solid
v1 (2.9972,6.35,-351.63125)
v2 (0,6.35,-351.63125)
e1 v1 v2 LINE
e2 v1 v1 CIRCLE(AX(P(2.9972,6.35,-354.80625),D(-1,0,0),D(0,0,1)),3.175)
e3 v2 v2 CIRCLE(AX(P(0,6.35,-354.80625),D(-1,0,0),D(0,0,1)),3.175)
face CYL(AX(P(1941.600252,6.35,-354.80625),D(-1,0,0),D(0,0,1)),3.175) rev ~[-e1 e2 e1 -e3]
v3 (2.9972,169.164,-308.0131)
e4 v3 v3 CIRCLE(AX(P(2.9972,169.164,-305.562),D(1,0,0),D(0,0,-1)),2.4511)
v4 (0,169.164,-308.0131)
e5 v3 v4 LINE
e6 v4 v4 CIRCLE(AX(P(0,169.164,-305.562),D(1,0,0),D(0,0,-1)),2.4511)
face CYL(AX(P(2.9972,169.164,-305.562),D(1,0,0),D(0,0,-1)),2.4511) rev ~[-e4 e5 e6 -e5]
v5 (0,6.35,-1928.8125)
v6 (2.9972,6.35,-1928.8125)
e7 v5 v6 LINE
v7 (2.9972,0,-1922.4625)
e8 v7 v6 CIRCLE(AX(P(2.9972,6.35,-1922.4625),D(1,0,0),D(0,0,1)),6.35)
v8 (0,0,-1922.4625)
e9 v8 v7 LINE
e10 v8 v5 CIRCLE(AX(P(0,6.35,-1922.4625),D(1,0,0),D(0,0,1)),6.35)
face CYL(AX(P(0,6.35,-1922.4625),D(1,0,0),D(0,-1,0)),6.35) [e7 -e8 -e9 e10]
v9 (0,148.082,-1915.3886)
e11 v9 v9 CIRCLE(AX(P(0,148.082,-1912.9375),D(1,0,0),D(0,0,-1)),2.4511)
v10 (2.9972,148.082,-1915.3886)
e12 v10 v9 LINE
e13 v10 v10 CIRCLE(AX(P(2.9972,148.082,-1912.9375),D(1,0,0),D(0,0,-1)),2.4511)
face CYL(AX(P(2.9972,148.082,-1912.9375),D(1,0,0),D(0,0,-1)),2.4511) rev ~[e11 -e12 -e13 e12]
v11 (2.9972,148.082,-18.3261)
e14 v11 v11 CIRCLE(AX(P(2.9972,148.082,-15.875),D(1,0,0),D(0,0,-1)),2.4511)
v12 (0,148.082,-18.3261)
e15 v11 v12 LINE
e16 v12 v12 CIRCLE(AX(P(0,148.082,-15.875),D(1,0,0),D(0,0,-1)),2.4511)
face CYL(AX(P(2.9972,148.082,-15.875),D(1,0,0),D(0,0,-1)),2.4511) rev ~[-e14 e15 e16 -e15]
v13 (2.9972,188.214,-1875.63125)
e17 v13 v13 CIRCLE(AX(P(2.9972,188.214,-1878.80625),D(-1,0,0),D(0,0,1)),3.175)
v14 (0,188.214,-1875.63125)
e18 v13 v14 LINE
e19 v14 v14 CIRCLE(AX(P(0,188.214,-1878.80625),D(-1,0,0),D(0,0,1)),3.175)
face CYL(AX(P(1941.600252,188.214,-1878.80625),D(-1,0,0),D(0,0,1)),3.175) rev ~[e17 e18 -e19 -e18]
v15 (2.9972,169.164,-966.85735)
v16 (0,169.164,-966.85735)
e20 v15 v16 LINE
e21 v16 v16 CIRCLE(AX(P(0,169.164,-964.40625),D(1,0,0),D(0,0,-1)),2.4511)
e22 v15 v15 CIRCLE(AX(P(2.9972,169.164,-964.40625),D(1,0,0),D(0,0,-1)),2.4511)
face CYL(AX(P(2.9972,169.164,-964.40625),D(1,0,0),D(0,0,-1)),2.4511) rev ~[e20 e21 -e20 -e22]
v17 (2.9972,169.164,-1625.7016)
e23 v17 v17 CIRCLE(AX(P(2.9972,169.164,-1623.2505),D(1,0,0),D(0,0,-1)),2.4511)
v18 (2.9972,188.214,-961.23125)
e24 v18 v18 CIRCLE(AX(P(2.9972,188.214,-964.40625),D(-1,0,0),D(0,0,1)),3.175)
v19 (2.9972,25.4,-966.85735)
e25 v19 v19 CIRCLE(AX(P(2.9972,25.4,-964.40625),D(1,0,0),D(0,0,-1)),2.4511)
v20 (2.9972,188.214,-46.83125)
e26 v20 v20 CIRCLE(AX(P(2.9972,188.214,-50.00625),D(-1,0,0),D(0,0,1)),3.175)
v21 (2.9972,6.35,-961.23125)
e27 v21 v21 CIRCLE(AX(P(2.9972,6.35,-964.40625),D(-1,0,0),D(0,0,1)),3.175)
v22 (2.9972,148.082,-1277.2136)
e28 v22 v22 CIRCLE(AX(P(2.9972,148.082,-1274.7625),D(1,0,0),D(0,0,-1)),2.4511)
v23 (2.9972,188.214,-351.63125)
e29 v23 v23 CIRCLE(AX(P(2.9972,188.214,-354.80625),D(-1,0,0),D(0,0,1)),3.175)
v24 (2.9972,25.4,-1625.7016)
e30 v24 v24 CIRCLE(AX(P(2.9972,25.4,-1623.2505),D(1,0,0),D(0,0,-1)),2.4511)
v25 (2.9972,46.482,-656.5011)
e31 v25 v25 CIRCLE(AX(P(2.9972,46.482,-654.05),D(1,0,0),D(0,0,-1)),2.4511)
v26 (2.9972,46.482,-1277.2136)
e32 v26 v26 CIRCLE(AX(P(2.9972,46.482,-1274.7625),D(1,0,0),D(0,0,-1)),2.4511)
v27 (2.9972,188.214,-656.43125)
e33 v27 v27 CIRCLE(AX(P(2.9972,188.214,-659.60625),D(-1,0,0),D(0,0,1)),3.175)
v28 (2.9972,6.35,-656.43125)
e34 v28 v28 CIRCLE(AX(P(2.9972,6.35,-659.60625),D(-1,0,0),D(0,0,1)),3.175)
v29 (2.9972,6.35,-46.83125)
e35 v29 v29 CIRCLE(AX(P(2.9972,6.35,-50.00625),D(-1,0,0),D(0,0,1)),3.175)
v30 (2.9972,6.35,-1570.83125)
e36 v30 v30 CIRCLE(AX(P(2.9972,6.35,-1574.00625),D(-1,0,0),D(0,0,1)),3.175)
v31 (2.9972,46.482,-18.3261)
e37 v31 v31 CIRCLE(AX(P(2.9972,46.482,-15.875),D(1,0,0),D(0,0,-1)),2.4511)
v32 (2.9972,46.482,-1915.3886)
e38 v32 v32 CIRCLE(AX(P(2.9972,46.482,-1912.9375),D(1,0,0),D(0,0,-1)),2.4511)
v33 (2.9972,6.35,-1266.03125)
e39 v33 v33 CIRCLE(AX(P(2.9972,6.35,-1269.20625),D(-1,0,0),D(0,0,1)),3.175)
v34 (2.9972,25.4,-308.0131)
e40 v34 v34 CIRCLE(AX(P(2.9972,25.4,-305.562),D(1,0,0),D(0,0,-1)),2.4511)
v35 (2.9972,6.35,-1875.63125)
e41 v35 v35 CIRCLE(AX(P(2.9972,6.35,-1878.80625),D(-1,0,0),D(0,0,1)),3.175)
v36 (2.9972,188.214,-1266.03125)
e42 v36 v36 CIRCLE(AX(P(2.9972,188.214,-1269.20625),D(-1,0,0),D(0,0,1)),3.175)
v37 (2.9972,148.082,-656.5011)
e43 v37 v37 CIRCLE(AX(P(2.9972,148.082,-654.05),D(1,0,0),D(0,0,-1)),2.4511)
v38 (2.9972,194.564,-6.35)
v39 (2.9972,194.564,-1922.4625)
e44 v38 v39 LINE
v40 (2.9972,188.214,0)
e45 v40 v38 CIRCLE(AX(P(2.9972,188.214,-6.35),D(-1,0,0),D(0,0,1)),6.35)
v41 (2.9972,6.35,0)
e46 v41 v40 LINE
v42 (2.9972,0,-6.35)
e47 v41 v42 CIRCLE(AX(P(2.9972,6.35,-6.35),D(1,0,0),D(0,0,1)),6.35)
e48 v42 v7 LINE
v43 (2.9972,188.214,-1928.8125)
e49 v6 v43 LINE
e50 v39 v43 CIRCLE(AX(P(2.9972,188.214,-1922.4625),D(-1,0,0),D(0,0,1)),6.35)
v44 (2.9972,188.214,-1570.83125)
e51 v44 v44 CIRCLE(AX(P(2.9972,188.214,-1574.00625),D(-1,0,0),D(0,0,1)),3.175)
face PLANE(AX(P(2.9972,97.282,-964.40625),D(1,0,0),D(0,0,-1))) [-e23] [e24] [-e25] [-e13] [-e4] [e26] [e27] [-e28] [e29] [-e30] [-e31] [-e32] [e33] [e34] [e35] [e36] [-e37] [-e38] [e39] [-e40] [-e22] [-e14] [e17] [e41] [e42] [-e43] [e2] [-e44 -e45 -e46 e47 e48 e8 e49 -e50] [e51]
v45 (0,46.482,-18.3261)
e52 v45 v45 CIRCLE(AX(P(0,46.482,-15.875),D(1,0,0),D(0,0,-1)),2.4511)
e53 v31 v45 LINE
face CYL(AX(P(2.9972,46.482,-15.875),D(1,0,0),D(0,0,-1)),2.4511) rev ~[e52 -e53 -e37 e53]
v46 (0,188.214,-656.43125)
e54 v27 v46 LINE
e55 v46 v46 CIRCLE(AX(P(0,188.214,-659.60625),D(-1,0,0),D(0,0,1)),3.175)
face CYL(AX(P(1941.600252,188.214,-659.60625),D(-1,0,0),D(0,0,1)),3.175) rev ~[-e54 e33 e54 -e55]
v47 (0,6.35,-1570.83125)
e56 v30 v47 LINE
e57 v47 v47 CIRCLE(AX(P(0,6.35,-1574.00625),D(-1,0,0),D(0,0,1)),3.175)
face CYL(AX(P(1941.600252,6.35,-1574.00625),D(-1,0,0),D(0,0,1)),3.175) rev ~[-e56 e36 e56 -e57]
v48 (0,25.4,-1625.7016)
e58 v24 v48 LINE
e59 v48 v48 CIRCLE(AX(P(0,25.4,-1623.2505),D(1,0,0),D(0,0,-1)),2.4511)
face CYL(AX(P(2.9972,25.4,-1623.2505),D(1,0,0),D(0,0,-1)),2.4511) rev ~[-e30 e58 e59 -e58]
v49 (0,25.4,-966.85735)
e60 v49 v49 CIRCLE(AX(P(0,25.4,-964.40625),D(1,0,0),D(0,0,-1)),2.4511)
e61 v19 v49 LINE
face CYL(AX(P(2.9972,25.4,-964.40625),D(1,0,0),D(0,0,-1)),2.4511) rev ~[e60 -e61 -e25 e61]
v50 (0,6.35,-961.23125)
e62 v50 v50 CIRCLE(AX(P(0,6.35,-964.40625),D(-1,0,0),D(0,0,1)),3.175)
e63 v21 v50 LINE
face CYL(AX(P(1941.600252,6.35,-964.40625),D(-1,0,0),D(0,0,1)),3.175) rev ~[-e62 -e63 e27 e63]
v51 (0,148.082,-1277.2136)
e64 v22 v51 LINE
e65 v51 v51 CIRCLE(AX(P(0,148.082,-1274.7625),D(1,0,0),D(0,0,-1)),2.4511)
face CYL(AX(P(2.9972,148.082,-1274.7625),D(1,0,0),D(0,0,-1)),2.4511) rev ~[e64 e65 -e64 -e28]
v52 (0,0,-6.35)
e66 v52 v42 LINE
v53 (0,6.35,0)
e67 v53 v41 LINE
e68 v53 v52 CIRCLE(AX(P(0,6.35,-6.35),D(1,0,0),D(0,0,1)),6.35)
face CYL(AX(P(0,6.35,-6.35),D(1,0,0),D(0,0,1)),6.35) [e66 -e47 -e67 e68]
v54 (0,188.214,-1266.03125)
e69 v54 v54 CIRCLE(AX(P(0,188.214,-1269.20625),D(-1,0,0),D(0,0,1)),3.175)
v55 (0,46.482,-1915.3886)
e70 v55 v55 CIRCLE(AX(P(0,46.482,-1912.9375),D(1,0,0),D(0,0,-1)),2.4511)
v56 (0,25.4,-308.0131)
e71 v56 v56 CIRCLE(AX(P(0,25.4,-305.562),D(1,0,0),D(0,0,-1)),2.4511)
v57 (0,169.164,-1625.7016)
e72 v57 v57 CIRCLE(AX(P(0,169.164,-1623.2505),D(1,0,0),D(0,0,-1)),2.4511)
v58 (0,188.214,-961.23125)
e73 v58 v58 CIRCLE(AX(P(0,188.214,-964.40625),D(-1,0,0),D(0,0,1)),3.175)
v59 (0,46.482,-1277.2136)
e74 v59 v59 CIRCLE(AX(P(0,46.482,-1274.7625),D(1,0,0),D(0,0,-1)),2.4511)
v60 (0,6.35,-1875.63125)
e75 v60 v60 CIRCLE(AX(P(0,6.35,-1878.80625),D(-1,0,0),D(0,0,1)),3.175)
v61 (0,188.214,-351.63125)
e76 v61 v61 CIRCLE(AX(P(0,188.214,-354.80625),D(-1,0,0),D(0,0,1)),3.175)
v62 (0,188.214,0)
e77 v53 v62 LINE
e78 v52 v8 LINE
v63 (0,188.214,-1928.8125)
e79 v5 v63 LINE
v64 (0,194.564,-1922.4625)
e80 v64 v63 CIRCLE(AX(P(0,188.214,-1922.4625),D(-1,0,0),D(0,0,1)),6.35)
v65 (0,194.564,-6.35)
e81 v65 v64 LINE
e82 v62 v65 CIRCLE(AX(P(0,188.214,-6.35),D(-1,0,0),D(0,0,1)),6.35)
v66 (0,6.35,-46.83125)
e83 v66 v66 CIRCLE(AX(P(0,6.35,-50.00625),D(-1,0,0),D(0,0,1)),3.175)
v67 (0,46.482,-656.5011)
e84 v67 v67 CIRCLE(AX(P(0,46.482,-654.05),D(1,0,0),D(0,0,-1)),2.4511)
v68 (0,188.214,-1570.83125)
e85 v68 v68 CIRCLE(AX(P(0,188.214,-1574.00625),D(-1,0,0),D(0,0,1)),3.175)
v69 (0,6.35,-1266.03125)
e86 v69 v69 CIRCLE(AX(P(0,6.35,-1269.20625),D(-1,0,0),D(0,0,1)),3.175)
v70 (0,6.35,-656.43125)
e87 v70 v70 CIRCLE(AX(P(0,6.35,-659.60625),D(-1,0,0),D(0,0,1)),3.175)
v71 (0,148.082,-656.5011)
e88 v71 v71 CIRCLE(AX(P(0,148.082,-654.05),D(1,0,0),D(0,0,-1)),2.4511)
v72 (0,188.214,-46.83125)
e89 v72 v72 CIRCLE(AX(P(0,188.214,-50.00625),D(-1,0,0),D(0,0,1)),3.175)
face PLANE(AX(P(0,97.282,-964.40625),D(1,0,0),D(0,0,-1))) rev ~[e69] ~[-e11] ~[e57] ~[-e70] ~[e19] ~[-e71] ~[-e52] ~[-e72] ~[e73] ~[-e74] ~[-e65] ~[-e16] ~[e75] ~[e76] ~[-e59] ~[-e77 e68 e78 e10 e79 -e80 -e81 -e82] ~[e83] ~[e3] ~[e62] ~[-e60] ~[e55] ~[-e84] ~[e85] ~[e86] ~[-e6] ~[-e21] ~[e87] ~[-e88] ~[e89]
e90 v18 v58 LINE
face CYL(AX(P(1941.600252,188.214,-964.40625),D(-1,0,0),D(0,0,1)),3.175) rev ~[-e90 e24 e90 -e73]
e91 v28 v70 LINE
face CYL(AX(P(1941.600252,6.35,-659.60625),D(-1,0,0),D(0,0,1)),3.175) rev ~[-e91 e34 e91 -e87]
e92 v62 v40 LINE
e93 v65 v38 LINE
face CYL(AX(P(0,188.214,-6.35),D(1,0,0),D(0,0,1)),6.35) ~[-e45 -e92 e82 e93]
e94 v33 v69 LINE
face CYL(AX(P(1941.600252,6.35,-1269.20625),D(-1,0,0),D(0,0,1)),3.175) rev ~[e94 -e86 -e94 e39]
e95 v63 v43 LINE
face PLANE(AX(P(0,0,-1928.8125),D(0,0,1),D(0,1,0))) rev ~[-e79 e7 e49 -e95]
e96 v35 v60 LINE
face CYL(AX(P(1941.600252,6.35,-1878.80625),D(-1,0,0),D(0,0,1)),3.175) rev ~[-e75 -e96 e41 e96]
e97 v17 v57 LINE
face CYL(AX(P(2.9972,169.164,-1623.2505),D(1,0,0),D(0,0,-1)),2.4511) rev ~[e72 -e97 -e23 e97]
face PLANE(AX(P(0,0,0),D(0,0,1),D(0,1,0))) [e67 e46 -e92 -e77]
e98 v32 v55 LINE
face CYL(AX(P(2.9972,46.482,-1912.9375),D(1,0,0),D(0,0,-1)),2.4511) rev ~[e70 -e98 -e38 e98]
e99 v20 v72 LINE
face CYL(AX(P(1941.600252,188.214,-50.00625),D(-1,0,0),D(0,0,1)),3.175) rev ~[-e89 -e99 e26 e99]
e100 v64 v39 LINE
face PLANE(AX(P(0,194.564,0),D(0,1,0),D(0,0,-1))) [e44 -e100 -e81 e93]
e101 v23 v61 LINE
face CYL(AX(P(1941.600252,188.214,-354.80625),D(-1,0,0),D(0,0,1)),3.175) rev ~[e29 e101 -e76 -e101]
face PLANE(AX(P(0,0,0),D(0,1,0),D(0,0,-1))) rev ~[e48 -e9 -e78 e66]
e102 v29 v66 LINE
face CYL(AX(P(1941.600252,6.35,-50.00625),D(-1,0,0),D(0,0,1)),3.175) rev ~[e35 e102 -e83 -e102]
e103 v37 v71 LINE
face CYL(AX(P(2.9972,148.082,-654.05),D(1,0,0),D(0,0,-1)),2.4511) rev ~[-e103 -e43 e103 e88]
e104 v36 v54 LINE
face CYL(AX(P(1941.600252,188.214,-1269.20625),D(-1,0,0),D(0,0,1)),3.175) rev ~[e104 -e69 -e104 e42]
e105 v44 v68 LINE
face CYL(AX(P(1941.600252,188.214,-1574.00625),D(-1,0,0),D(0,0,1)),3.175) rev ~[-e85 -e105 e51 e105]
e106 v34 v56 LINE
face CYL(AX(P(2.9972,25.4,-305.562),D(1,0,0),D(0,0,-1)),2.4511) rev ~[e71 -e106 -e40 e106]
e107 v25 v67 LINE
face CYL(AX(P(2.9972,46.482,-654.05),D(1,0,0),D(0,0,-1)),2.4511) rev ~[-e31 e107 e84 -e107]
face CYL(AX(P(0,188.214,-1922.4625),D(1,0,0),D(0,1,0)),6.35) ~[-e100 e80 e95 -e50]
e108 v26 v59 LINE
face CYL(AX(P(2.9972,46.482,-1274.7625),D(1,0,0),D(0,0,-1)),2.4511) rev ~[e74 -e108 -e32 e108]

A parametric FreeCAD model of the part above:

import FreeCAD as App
import Part
import Sketcher
Q = App.Units.Quantity


def edges_at(feature, points):
    """Names of the edges that pass closest to the given points."""
    edges = feature.Shape.Edges
    near = lambda p: min(range(len(edges)), key=lambda i: edges[i].distToShape(Part.Vertex(*p))[0])
    return sorted({f"Edge{near(p) + 1}" for p in points})


def add_polygon(sketch, points):
    """Adds a closed chain of lines whose ends are joined by coincident constraints."""
    first, n = sketch.GeometryCount, len(points)
    for a, b in zip(points, points[1:] + points[:1]):
        sketch.addGeometry(Part.LineSegment(App.Vector(*a, 0), App.Vector(*b, 0)), False)
    for i in range(n):
        sketch.addConstraint(Sketcher.Constraint("Coincident", first + i, 2, first + (i + 1) % n, 1))

doc = App.newDocument("Part")
body = doc.addObject("PartDesign::Body", "Body")

# Sketch on YZ plane
sketch1 = body.newObject("Sketcher::SketchObject", "Sketch")
sketch1.AttachmentSupport = (doc.getObject("YZ_Plane"), [""])
sketch1.MapMode = "FlatFace"
add_polygon(sketch1, [(194.564, 0), (0, 0), (0, -1928.8125), (194.564, -1928.8125)])  # lines 0-3
sketch1.addConstraint(Sketcher.Constraint("Horizontal", 0))
sketch1.addConstraint(Sketcher.Constraint("Vertical", 1))
sketch1.addConstraint(Sketcher.Constraint("Horizontal", 2))
sketch1.addConstraint(Sketcher.Constraint("Vertical", 3))
sketch1.addConstraint(Sketcher.Constraint("Coincident", 0, 2, -1, 1))
sketch1.addConstraint(Sketcher.Constraint("DistanceX", 0, 2, 0, 1, Q("7.66 in")))
sketch1.addConstraint(Sketcher.Constraint("DistanceY", 1, 2, 1, 1, Q("75.9375 in")))
pad1 = body.newObject("PartDesign::Pad", "Pad")
pad1.Profile = sketch1
pad1.Length = Q("0.118 in")

# Sketch on YZ plane
sketch2 = body.newObject("Sketcher::SketchObject", "Sketch001")
sketch2.AttachmentSupport = (doc.getObject("YZ_Plane"), [""])
sketch2.MapMode = "FlatFace"
sketch2.AttachmentOffset = App.Placement(App.Vector(0, 0, 0.118 * 25.4), App.Rotation())
sketch2.addGeometry(Part.Circle(App.Vector(148.082, -15.875, 0), App.Vector(0, 0, 1), 2.4511), False)
sketch2.addGeometry(Part.Circle(App.Vector(148.082, -654.05, 0), App.Vector(0, 0, 1), 2.4511), False)
sketch2.addGeometry(Part.Circle(App.Vector(169.164, -305.562, 0), App.Vector(0, 0, 1), 2.4511), False)
sketch2.addGeometry(Part.Circle(App.Vector(169.164, -964.40625, 0), App.Vector(0, 0, 1), 2.4511), False)
sketch2.addGeometry(Part.Circle(App.Vector(25.4, -964.40625, 0), App.Vector(0, 0, 1), 2.4511), False)
sketch2.addGeometry(Part.Circle(App.Vector(25.4, -305.562, 0), App.Vector(0, 0, 1), 2.4511), False)
sketch2.addGeometry(Part.Circle(App.Vector(46.482, -15.875, 0), App.Vector(0, 0, 1), 2.4511), False)
sketch2.addGeometry(Part.Circle(App.Vector(46.482, -654.05, 0), App.Vector(0, 0, 1), 2.4511), False)
sketch2.addGeometry(Part.Circle(App.Vector(25.4, -1623.2505, 0), App.Vector(0, 0, 1), 2.4511), False)
sketch2.addGeometry(Part.Circle(App.Vector(169.164, -1623.2505, 0), App.Vector(0, 0, 1), 2.4511), False)
sketch2.addGeometry(Part.Circle(App.Vector(46.482, -1912.9375, 0), App.Vector(0, 0, 1), 2.4511), False)
sketch2.addGeometry(Part.Circle(App.Vector(148.082, -1912.9375, 0), App.Vector(0, 0, 1), 2.4511), False)
sketch2.addGeometry(Part.Circle(App.Vector(46.482, -1274.7625, 0), App.Vector(0, 0, 1), 2.4511), False)
sketch2.addGeometry(Part.Circle(App.Vector(148.082, -1274.7625, 0), App.Vector(0, 0, 1), 2.4511), False)
sketch2.addConstraint(Sketcher.Constraint("Equal", 0, 1))
sketch2.addConstraint(Sketcher.Constraint("Equal", 1, 2))
sketch2.addConstraint(Sketcher.Constraint("Equal", 2, 3))
sketch2.addConstraint(Sketcher.Constraint("Equal", 3, 4))
sketch2.addConstraint(Sketcher.Constraint("Equal", 4, 5))
sketch2.addConstraint(Sketcher.Constraint("Equal", 5, 6))
sketch2.addConstraint(Sketcher.Constraint("Equal", 6, 7))
sketch2.addConstraint(Sketcher.Constraint("Equal", 7, 8))
sketch2.addConstraint(Sketcher.Constraint("Equal", 8, 9))
sketch2.addConstraint(Sketcher.Constraint("Equal", 9, 10))
sketch2.addConstraint(Sketcher.Constraint("Equal", 10, 11))
sketch2.addConstraint(Sketcher.Constraint("Equal", 11, 12))
sketch2.addConstraint(Sketcher.Constraint("Equal", 12, 13))
sketch2.addConstraint(Sketcher.Constraint("Horizontal", 3, 3, 4, 3))
sketch2.addConstraint(Sketcher.Constraint("Horizontal", 2, 3, 5, 3))
sketch2.addConstraint(Sketcher.Constraint("Horizontal", 0, 3, 6, 3))
sketch2.addConstraint(Sketcher.Constraint("Horizontal", 1, 3, 7, 3))
sketch2.addConstraint(Sketcher.Constraint("Horizontal", 8, 3, 9, 3))
sketch2.addConstraint(Sketcher.Constraint("Horizontal", 10, 3, 11, 3))
sketch2.addConstraint(Sketcher.Constraint("Horizontal", 12, 3, 13, 3))
sketch2.addConstraint(Sketcher.Constraint("Vertical", 0, 3, 1, 3))
sketch2.addConstraint(Sketcher.Constraint("Vertical", 2, 3, 3, 3))
sketch2.addConstraint(Sketcher.Constraint("Vertical", 4, 3, 5, 3))
sketch2.addConstraint(Sketcher.Constraint("Vertical", 6, 3, 7, 3))
sketch2.addConstraint(Sketcher.Constraint("Vertical", 5, 3, 8, 3))
sketch2.addConstraint(Sketcher.Constraint("Vertical", 3, 3, 9, 3))
sketch2.addConstraint(Sketcher.Constraint("Vertical", 7, 3, 10, 3))
sketch2.addConstraint(Sketcher.Constraint("Vertical", 1, 3, 11, 3))
sketch2.addConstraint(Sketcher.Constraint("Vertical", 10, 3, 12, 3))
sketch2.addConstraint(Sketcher.Constraint("Vertical", 11, 3, 13, 3))
sketch2.addConstraint(Sketcher.Constraint("Diameter", 0, Q("0.193 in")))
sketch2.addConstraint(Sketcher.Constraint("DistanceX", -1, 1, 4, 3, Q("1 in")))
sketch2.addConstraint(Sketcher.Constraint("DistanceX", 6, 3, 0, 3, Q("4 in")))
sketch2.addConstraint(Sketcher.Constraint("DistanceX", -1, 1, 0, 3, Q("5.83 in")))
sketch2.addConstraint(Sketcher.Constraint("DistanceY", 1, 3, -1, 1, Q("25.75 in")))
sketch2.addConstraint(Sketcher.Constraint("DistanceX", -1, 1, 2, 3, Q("6.66 in")))
sketch2.addConstraint(Sketcher.Constraint("DistanceY", 2, 3, -1, 1, Q("12.03 in")))
sketch2.addConstraint(Sketcher.Constraint("DistanceY", 8, 3, 12, 3, Q("13.72 in")))
sketch2.addConstraint(Sketcher.Constraint("DistanceY", 0, 3, -1, 1, Q("0.625 in")))
sketch2.addConstraint(Sketcher.Constraint("DistanceY", 3, 3, -1, 1, Q("37.96875 in")))
sketch2.addConstraint(Sketcher.Constraint("DistanceY", 10, 3, -1, 1, Q("75.3125 in")))
sketch2.addConstraint(Sketcher.Constraint("DistanceY", 12, 3, -1, 1, Q("50.1875 in")))
pocket1 = body.newObject("PartDesign::Pocket", "Pocket")
pocket1.Profile = sketch2
pocket1.Type = "ThroughAll"
doc.recompute()

fillet = body.newObject("PartDesign::Fillet", "Fillet")
fillet.Base = (pocket1, edges_at(pocket1, [
    (1.499, 194.564, 0),
    (1.499, 194.564, -1928.812),
    (1.499, 0, -1928.812),
    (1.499, 0, 0),
]))
fillet.Radius = Q("0.25 in")

# Sketch on YZ plane
sketch3 = body.newObject("Sketcher::SketchObject", "Sketch002")
sketch3.AttachmentSupport = (doc.getObject("YZ_Plane"), [""])
sketch3.MapMode = "FlatFace"
sketch3.AttachmentOffset = App.Placement(App.Vector(0, 0, 0.118 * 25.4), App.Rotation())
sketch3.addGeometry(Part.Circle(App.Vector(6.35, -964.40625, 0), App.Vector(0, 0, 1), 3.175), False)
sketch3.addGeometry(Part.Circle(App.Vector(6.35, -659.60625, 0), App.Vector(0, 0, 1), 3.175), False)
sketch3.addGeometry(Part.Circle(App.Vector(6.35, -354.80625, 0), App.Vector(0, 0, 1), 3.175), False)
sketch3.addGeometry(Part.Circle(App.Vector(6.35, -50.00625, 0), App.Vector(0, 0, 1), 3.175), False)
sketch3.addGeometry(Part.Circle(App.Vector(6.35, -1269.20625, 0), App.Vector(0, 0, 1), 3.175), False)
sketch3.addGeometry(Part.Circle(App.Vector(6.35, -1574.00625, 0), App.Vector(0, 0, 1), 3.175), False)
sketch3.addGeometry(Part.Circle(App.Vector(6.35, -1878.80625, 0), App.Vector(0, 0, 1), 3.175), False)
sketch3.addGeometry(Part.Circle(App.Vector(188.214, -1878.80625, 0), App.Vector(0, 0, 1), 3.175), False)
sketch3.addGeometry(Part.Circle(App.Vector(188.214, -1574.00625, 0), App.Vector(0, 0, 1), 3.175), False)
sketch3.addGeometry(Part.Circle(App.Vector(188.214, -1269.20625, 0), App.Vector(0, 0, 1), 3.175), False)
sketch3.addGeometry(Part.Circle(App.Vector(188.214, -50.00625, 0), App.Vector(0, 0, 1), 3.175), False)
sketch3.addGeometry(Part.Circle(App.Vector(188.214, -354.80625, 0), App.Vector(0, 0, 1), 3.175), False)
sketch3.addGeometry(Part.Circle(App.Vector(188.214, -659.60625, 0), App.Vector(0, 0, 1), 3.175), False)
sketch3.addGeometry(Part.Circle(App.Vector(188.214, -964.40625, 0), App.Vector(0, 0, 1), 3.175), False)
sketch3.addConstraint(Sketcher.Constraint("Equal", 0, 1))
sketch3.addConstraint(Sketcher.Constraint("Equal", 1, 2))
sketch3.addConstraint(Sketcher.Constraint("Equal", 2, 3))
sketch3.addConstraint(Sketcher.Constraint("Equal", 3, 4))
sketch3.addConstraint(Sketcher.Constraint("Equal", 4, 5))
sketch3.addConstraint(Sketcher.Constraint("Equal", 5, 6))
sketch3.addConstraint(Sketcher.Constraint("Equal", 6, 7))
sketch3.addConstraint(Sketcher.Constraint("Equal", 7, 8))
sketch3.addConstraint(Sketcher.Constraint("Equal", 8, 9))
sketch3.addConstraint(Sketcher.Constraint("Equal", 9, 10))
sketch3.addConstraint(Sketcher.Constraint("Equal", 10, 11))
sketch3.addConstraint(Sketcher.Constraint("Equal", 11, 12))
sketch3.addConstraint(Sketcher.Constraint("Equal", 12, 13))
sketch3.addConstraint(Sketcher.Constraint("Horizontal", 6, 3, 7, 3))
sketch3.addConstraint(Sketcher.Constraint("Horizontal", 5, 3, 8, 3))
sketch3.addConstraint(Sketcher.Constraint("Horizontal", 4, 3, 9, 3))
sketch3.addConstraint(Sketcher.Constraint("Horizontal", 3, 3, 10, 3))
sketch3.addConstraint(Sketcher.Constraint("Horizontal", 2, 3, 11, 3))
sketch3.addConstraint(Sketcher.Constraint("Horizontal", 1, 3, 12, 3))
sketch3.addConstraint(Sketcher.Constraint("Horizontal", 0, 3, 13, 3))
sketch3.addConstraint(Sketcher.Constraint("Vertical", 0, 3, 1, 3))
sketch3.addConstraint(Sketcher.Constraint("Vertical", 1, 3, 2, 3))
sketch3.addConstraint(Sketcher.Constraint("Vertical", 2, 3, 3, 3))
sketch3.addConstraint(Sketcher.Constraint("Vertical", 3, 3, 4, 3))
sketch3.addConstraint(Sketcher.Constraint("Vertical", 4, 3, 5, 3))
sketch3.addConstraint(Sketcher.Constraint("Vertical", 5, 3, 6, 3))
sketch3.addConstraint(Sketcher.Constraint("Vertical", 7, 3, 8, 3))
sketch3.addConstraint(Sketcher.Constraint("Vertical", 8, 3, 9, 3))
sketch3.addConstraint(Sketcher.Constraint("Vertical", 9, 3, 10, 3))
sketch3.addConstraint(Sketcher.Constraint("Vertical", 10, 3, 11, 3))
sketch3.addConstraint(Sketcher.Constraint("Vertical", 11, 3, 12, 3))
sketch3.addConstraint(Sketcher.Constraint("Vertical", 12, 3, 13, 3))
sketch3.addConstraint(Sketcher.Constraint("Diameter", 0, Q("0.25 in")))
sketch3.addConstraint(Sketcher.Constraint("DistanceY", 0, 3, 1, 3, Q("12 in")))
sketch3.addConstraint(Sketcher.Constraint("DistanceY", 1, 3, 2, 3, Q("12 in")))
sketch3.addConstraint(Sketcher.Constraint("DistanceY", 2, 3, 3, 3, Q("12 in")))
sketch3.addConstraint(Sketcher.Constraint("DistanceY", 4, 3, 0, 3, Q("12 in")))
sketch3.addConstraint(Sketcher.Constraint("DistanceY", 5, 3, 4, 3, Q("12 in")))
sketch3.addConstraint(Sketcher.Constraint("DistanceY", 6, 3, 5, 3, Q("12 in")))
sketch3.addConstraint(Sketcher.Constraint("DistanceX", -1, 1, 0, 3, Q("0.25 in")))
sketch3.addConstraint(Sketcher.Constraint("DistanceX", -1, 1, 7, 3, Q("7.41 in")))
sketch3.addConstraint(Sketcher.Constraint("DistanceY", 0, 3, -1, 1, Q("37.96875 in")))
doc.recompute()
hole = body.newObject("PartDesign::Hole", "Hole")
hole.Profile = sketch3
hole.ThreadType = "None"
hole.Diameter = Q("0.25 in")
hole.DepthType = "ThroughAll"

doc.recompute()
